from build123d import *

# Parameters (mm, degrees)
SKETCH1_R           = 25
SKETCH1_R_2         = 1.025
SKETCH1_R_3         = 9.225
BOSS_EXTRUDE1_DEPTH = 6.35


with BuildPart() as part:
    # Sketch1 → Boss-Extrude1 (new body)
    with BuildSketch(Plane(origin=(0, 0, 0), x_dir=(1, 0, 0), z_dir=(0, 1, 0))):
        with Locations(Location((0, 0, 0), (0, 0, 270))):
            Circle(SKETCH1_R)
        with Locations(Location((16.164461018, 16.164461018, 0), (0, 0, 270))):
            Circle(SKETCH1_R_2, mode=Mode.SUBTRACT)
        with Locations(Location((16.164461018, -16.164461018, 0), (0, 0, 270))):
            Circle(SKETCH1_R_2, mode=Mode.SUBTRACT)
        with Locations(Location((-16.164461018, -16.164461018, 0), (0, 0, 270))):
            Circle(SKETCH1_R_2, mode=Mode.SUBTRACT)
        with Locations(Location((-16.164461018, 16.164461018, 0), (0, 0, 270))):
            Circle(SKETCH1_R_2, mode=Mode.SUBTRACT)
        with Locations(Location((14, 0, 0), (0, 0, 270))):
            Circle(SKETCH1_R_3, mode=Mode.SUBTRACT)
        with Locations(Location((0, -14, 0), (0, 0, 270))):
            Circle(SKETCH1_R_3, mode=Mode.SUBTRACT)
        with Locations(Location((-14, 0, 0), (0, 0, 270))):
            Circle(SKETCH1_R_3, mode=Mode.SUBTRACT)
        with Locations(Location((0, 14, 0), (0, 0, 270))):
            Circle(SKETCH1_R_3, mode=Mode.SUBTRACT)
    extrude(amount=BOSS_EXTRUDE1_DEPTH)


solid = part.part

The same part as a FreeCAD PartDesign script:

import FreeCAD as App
import Part
import Sketcher

V = App.Vector
Q = App.Units.Quantity

doc = App.newDocument("Part")
body = doc.addObject("PartDesign::Body", "Body")

sketch1 = body.newObject("Sketcher::SketchObject", "Sketch")
sketch1.AttachmentSupport = (doc.getObject("XZ_Plane"), [""])
sketch1.MapMode = "FlatFace"
sketch1.addGeometry([
    Part.Circle(V(0, 0, 0), V(0, 0, 1), 25),
    Part.Circle(V(-16.2, -16.2, 0), V(0, 0, 1), 1),
    Part.Circle(V(0, -14, 0), V(0, 0, 1), 9.2),
    Part.Circle(V(-14, 0, 0), V(0, 0, 1), 9.2),
    Part.Circle(V(-16.2, 16.2, 0), V(0, 0, 1), 1),
    Part.Circle(V(16.2, -16.2, 0), V(0, 0, 1), 1),
    Part.Circle(V(0, 14, 0), V(0, 0, 1), 9.2),
    Part.Circle(V(14, 0, 0), V(0, 0, 1), 9.2),
    Part.Circle(V(16.2, 16.2, 0), V(0, 0, 1), 1),
], False)
sketch1.addConstraint([
    Sketcher.Constraint("Coincident", 0, 3, -1, 1),
    Sketcher.Constraint("Equal", 2, 3),
    Sketcher.Constraint("Equal", 1, 4),
    Sketcher.Constraint("Equal", 4, 5),
    Sketcher.Constraint("Equal", 3, 6),
    Sketcher.Constraint("Equal", 6, 7),
    Sketcher.Constraint("Equal", 5, 8),
    Sketcher.Constraint("Symmetric", 4, 3, 5, 3, -1, 1),
    Sketcher.Constraint("Symmetric", 2, 3, 6, 3, -1, 1),
    Sketcher.Constraint("Symmetric", 3, 3, 7, 3, -1, 1),
    Sketcher.Constraint("Symmetric", 1, 3, 8, 3, -1, 1),
    Sketcher.Constraint("Symmetric", 1, 3, 5, 3, -2),
    Sketcher.Constraint("PointOnObject", 2, 3, -2),
    Sketcher.Constraint("PointOnObject", 3, 3, -1),
    Sketcher.Constraint("Diameter", 0, Q("50 mm")),
    Sketcher.Constraint("Diameter", 1, Q("2.05 mm")),
    Sketcher.Constraint("Diameter", 2, Q("18.45 mm")),
    Sketcher.Constraint("DistanceY", 2, 3, -1, 1, Q("14 mm")),
    Sketcher.Constraint("DistanceX", 3, 3, -1, 1, Q("14 mm")),
    Sketcher.Constraint("DistanceX", 1, 3, -1, 1, Q("16.164461 mm")),
    Sketcher.Constraint("DistanceY", 1, 3, -1, 1, Q("16.164461 mm")),
])
pad1 = body.newObject("PartDesign::Pad", "Pad")
pad1.Profile = sketch1
pad1.Length = 6.35
pad1.Reversed = True

doc.recompute()
